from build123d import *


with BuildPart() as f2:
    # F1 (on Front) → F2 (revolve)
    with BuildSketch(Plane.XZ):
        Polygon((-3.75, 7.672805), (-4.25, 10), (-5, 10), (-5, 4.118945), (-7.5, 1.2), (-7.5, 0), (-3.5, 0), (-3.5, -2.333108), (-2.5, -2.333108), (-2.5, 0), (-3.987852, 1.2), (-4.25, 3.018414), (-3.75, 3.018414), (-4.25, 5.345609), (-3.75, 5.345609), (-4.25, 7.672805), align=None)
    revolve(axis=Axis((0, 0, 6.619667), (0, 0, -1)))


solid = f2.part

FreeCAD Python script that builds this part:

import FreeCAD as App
import Part
import Sketcher
Q = App.Units.Quantity

doc = App.newDocument("Part")
body = doc.addObject("PartDesign::Body", "Body")

# Sketch on XZ plane
sketch1 = doc.addObject("Sketcher::SketchObject", "Sketch")
body.addObject(sketch1)
sketch1.AttachmentSupport = (doc.XZ_Plane, [""])
sketch1.MapMode = "FlatFace"
sketch1.addGeometry([
    Part.LineSegment(App.Vector(-3.8, 7.7, 0), App.Vector(-4.2, 10, 0)),  # 0
    Part.LineSegment(App.Vector(-4.2, 10, 0), App.Vector(-5, 10, 0)),  # 1
    Part.LineSegment(App.Vector(-5, 10, 0), App.Vector(-5, 4.1, 0)),  # 2
    Part.LineSegment(App.Vector(-5, 4.1, 0), App.Vector(-7.5, 1.2, 0)),  # 3
    Part.LineSegment(App.Vector(-7.5, 1.2, 0), App.Vector(-7.5, 0, 0)),  # 4
    Part.LineSegment(App.Vector(-7.5, 0, 0), App.Vector(-3.5, 0, 0)),  # 5
    Part.LineSegment(App.Vector(-3.5, 0, 0), App.Vector(-3.5, -2.3, 0)),  # 6
    Part.LineSegment(App.Vector(-3.5, -2.3, 0), App.Vector(-2.5, -2.3, 0)),  # 7
    Part.LineSegment(App.Vector(-2.5, -2.3, 0), App.Vector(-2.5, 0, 0)),  # 8
    Part.LineSegment(App.Vector(-2.5, 0, 0), App.Vector(-4, 1.2, 0)),  # 9
    Part.LineSegment(App.Vector(-4, 1.2, 0), App.Vector(-4.2, 3, 0)),  # 10
    Part.LineSegment(App.Vector(-4.2, 3, 0), App.Vector(-3.8, 3, 0)),  # 11
    Part.LineSegment(App.Vector(-3.8, 3, 0), App.Vector(-4.2, 5.3, 0)),  # 12
    Part.LineSegment(App.Vector(-4.2, 5.3, 0), App.Vector(-3.8, 5.3, 0)),  # 13
    Part.LineSegment(App.Vector(-3.8, 5.3, 0), App.Vector(-4.2, 7.7, 0)),  # 14
    Part.LineSegment(App.Vector(-4.2, 7.7, 0), App.Vector(-3.8, 7.7, 0)),  # 15
], False)
sketch1.addConstraint([
    Sketcher.Constraint("Coincident", 0, 2, 1, 1),
    Sketcher.Constraint("Coincident", 1, 2, 2, 1),
    Sketcher.Constraint("Coincident", 2, 2, 3, 1),
    Sketcher.Constraint("Coincident", 3, 2, 4, 1),
    Sketcher.Constraint("Coincident", 4, 2, 5, 1),
    Sketcher.Constraint("Coincident", 5, 2, 6, 1),
    Sketcher.Constraint("Coincident", 6, 2, 7, 1),
    Sketcher.Constraint("Coincident", 7, 2, 8, 1),
    Sketcher.Constraint("Coincident", 8, 2, 9, 1),
    Sketcher.Constraint("Coincident", 9, 2, 10, 1),
    Sketcher.Constraint("Coincident", 10, 2, 11, 1),
    Sketcher.Constraint("Coincident", 11, 2, 12, 1),
    Sketcher.Constraint("Coincident", 12, 2, 13, 1),
    Sketcher.Constraint("Coincident", 13, 2, 14, 1),
    Sketcher.Constraint("Coincident", 14, 2, 15, 1),
    Sketcher.Constraint("Coincident", 15, 2, 0, 1),
    Sketcher.Constraint("Horizontal", 1),
    Sketcher.Constraint("Vertical", 2),
    Sketcher.Constraint("Vertical", 4),
    Sketcher.Constraint("Horizontal", 5),
    Sketcher.Constraint("Vertical", 6),
    Sketcher.Constraint("Horizontal", 7),
    Sketcher.Constraint("Vertical", 8),
    Sketcher.Constraint("Horizontal", 11),
    Sketcher.Constraint("Horizontal", 13),
    Sketcher.Constraint("Horizontal", 15),
    Sketcher.Constraint("PointOnObject", 4, 2, -1),
    Sketcher.Constraint("PointOnObject", 8, 2, -1),
    Sketcher.Constraint("Parallel", 0, 12),
    Sketcher.Constraint("Parallel", 12, 14),
    Sketcher.Constraint("Horizontal", 3, 2, 9, 2),
    Sketcher.Constraint("Vertical", 0, 2, 10, 2),
    Sketcher.Constraint("Vertical", 10, 2, 12, 2),
    Sketcher.Constraint("Vertical", 11, 2, 13, 2),
    Sketcher.Constraint("Vertical", 12, 2, 14, 2),
    Sketcher.Constraint("Vertical", 13, 2, 15, 2),
    Sketcher.Constraint("DistanceX", 5, 1, 5, 2, Q("4 mm")),
    Sketcher.Constraint("DistanceX", 7, 1, 7, 2, Q("1 mm")),
    Sketcher.Constraint("DistanceX", 11, 1, 11, 2, Q("0.5 mm")),
    Sketcher.Constraint("DistanceY", 4, 2, 4, 1, Q("1.2 mm")),
    Sketcher.Constraint("DistanceY", -1, 1, 0, 2, Q("10 mm")),
    Sketcher.Constraint("DistanceX", 1, 2, -1, 1, Q("5 mm")),
    Sketcher.Constraint("DistanceX", 1, 2, 1, 1, Q("0.75 mm")),
    Sketcher.Constraint("DistanceX", 3, 2, -1, 1, Q("7.5 mm")),
    Sketcher.Constraint("Distance", 0, Q("2.380302 mm")),
    Sketcher.Constraint("DistanceY", 6, 2, 6, 1, Q("2.333108 mm")),
    Sketcher.Constraint("DistanceY", 2, 2, 2, 1, Q("5.881055 mm")),
    Sketcher.Constraint("Distance", 9, Q("1.911466 mm")),
])
revolution = doc.addObject("PartDesign::Revolution", "Revolution")
body.addObject(revolution)
revolution.Profile = sketch1
revolution.ReferenceAxis = (sketch1, ["V_Axis"])
revolution.Angle = 360

doc.recompute()
